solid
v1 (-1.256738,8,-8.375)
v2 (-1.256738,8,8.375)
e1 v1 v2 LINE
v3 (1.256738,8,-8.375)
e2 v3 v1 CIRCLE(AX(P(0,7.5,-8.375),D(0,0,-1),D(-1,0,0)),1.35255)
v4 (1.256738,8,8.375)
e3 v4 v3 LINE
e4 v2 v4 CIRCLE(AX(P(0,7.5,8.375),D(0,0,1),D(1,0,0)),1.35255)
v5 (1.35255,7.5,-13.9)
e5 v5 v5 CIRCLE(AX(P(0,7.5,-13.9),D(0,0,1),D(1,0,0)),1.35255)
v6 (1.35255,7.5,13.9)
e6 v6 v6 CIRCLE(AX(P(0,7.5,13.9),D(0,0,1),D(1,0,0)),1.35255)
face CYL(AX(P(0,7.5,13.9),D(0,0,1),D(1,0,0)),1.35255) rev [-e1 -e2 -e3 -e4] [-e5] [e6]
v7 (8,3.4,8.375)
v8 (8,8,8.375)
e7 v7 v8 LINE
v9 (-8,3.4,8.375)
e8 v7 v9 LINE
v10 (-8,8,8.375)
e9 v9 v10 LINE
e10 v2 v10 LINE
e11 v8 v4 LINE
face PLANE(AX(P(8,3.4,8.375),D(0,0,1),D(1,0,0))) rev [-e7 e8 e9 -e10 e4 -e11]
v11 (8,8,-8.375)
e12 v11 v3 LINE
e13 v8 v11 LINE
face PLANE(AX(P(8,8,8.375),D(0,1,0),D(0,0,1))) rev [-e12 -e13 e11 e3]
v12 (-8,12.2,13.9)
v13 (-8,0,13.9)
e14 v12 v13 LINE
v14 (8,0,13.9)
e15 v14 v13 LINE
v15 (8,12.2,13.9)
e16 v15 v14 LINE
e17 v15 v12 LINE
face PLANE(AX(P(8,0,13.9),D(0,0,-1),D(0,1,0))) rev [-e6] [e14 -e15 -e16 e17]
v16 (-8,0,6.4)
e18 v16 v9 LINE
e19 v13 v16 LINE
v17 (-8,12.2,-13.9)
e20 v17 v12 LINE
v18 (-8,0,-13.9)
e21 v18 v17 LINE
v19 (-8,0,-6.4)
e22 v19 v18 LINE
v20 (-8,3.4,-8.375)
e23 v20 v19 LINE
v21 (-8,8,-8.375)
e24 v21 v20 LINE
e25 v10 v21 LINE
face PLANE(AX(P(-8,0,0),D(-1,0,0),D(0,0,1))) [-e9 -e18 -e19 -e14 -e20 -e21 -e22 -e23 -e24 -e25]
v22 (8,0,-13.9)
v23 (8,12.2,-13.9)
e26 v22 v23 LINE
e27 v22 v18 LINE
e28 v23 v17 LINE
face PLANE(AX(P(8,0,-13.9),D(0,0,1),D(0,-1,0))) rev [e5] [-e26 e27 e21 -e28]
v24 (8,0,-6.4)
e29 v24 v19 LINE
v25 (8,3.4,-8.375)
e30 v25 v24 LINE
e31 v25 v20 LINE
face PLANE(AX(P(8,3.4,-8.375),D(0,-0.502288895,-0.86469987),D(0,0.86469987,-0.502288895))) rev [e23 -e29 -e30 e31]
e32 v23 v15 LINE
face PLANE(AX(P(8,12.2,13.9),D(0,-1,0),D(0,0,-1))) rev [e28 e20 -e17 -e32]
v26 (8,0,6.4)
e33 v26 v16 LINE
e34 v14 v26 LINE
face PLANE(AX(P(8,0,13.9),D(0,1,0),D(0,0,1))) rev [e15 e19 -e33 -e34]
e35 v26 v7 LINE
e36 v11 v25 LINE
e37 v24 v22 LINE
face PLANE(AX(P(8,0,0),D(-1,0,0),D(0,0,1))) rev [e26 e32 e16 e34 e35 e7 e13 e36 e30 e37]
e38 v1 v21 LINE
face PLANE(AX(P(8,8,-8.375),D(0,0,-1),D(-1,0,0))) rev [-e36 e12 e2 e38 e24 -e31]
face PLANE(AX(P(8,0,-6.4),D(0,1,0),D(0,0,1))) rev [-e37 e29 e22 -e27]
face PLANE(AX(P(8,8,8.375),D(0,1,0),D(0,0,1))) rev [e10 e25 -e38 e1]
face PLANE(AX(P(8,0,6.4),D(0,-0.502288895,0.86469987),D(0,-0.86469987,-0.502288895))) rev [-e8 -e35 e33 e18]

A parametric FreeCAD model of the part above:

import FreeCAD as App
import Part
import Sketcher
Q = App.Units.Quantity

doc = App.newDocument("Part")
body = doc.addObject("PartDesign::Body", "Body")

sketch1 = body.newObject("Sketcher::SketchObject", "Sketch")
sketch1.AttachmentSupport = (doc.getObject("YZ_Plane"), [""])
sketch1.MapMode = "FlatFace"
sketch1.addGeometry([
    Part.LineSegment(App.Vector(0, 6.4, 0), App.Vector(3.4, 8.4, 0)),
    Part.LineSegment(App.Vector(3.4, 8.4, 0), App.Vector(8, 8.4, 0)),
    Part.LineSegment(App.Vector(8, 8.4, 0), App.Vector(8, -8.4, 0)),
    Part.LineSegment(App.Vector(8, -8.4, 0), App.Vector(3.4, -8.4, 0)),
    Part.LineSegment(App.Vector(3.4, -8.4, 0), App.Vector(0, -6.4, 0)),
    Part.LineSegment(App.Vector(0, -6.4, 0), App.Vector(0, -13.9, 0)),
    Part.LineSegment(App.Vector(0, -13.9, 0), App.Vector(12.2, -13.9, 0)),
    Part.LineSegment(App.Vector(12.2, -13.9, 0), App.Vector(12.2, 13.9, 0)),
    Part.LineSegment(App.Vector(12.2, 13.9, 0), App.Vector(0, 13.9, 0)),
    Part.LineSegment(App.Vector(0, 13.9, 0), App.Vector(0, 6.4, 0)),
], False)
sketch1.addConstraint([
    Sketcher.Constraint("Coincident", 0, 2, 1, 1),
    Sketcher.Constraint("Coincident", 1, 2, 2, 1),
    Sketcher.Constraint("Coincident", 2, 2, 3, 1),
    Sketcher.Constraint("Coincident", 3, 2, 4, 1),
    Sketcher.Constraint("Coincident", 4, 2, 5, 1),
    Sketcher.Constraint("Coincident", 5, 2, 6, 1),
    Sketcher.Constraint("Coincident", 6, 2, 7, 1),
    Sketcher.Constraint("Coincident", 7, 2, 8, 1),
    Sketcher.Constraint("Coincident", 8, 2, 9, 1),
    Sketcher.Constraint("Coincident", 9, 2, 0, 1),
    Sketcher.Constraint("Horizontal", 1),
    Sketcher.Constraint("Vertical", 2),
    Sketcher.Constraint("Horizontal", 3),
    Sketcher.Constraint("Vertical", 5),
    Sketcher.Constraint("Horizontal", 6),
    Sketcher.Constraint("Vertical", 7),
    Sketcher.Constraint("Horizontal", 8),
    Sketcher.Constraint("Vertical", 9),
    Sketcher.Constraint("Symmetric", 5, 2, 8, 2, -1, 1),
    Sketcher.Constraint("Symmetric", 0, 2, 3, 2, -1),
    Sketcher.Constraint("Symmetric", 4, 2, 9, 2, -1),
    Sketcher.Constraint("DistanceX", 1, 1, 1, 2, Q("4.6 mm")),
    Sketcher.Constraint("DistanceX", 6, 1, 6, 2, Q("12.2 mm")),
    Sketcher.Constraint("DistanceY", 5, 2, 5, 1, Q("7.5 mm")),
    Sketcher.Constraint("DistanceY", 7, 1, 7, 2, Q("27.8 mm")),
    Sketcher.Constraint("DistanceX", -1, 1, 1, 2, Q("8 mm")),
    Sketcher.Constraint("DistanceY", 2, 2, 2, 1, Q("16.75 mm")),
])
pad1 = body.newObject("PartDesign::Pad", "Pad")
pad1.Profile = sketch1
pad1.Length = 16
pad1.Midplane = True

sketch2 = body.newObject("Sketcher::SketchObject", "Sketch001")
sketch2.AttachmentSupport = (doc.getObject("XY_Plane"), [""])
sketch2.MapMode = "FlatFace"
sketch2.AttachmentOffset = App.Placement(App.Vector(0, 0, 13.9), App.Rotation())
sketch2.addGeometry(Part.Circle(App.Vector(0, 7.5, 0), App.Vector(0, 0, 1), 1.4), False)
sketch2.addConstraint([
    Sketcher.Constraint("PointOnObject", 0, 3, -2),
    Sketcher.Constraint("Diameter", 0, Q("2.7051 mm")),
    Sketcher.Constraint("DistanceY", -1, 1, 0, 3, Q("7.5 mm")),
])
doc.recompute()
hole = body.newObject("PartDesign::Hole", "Hole")
hole.Profile = sketch2
hole.ThreadType = "None"
hole.Diameter = 2.7051
hole.DepthType = "ThroughAll"

doc.recompute()
